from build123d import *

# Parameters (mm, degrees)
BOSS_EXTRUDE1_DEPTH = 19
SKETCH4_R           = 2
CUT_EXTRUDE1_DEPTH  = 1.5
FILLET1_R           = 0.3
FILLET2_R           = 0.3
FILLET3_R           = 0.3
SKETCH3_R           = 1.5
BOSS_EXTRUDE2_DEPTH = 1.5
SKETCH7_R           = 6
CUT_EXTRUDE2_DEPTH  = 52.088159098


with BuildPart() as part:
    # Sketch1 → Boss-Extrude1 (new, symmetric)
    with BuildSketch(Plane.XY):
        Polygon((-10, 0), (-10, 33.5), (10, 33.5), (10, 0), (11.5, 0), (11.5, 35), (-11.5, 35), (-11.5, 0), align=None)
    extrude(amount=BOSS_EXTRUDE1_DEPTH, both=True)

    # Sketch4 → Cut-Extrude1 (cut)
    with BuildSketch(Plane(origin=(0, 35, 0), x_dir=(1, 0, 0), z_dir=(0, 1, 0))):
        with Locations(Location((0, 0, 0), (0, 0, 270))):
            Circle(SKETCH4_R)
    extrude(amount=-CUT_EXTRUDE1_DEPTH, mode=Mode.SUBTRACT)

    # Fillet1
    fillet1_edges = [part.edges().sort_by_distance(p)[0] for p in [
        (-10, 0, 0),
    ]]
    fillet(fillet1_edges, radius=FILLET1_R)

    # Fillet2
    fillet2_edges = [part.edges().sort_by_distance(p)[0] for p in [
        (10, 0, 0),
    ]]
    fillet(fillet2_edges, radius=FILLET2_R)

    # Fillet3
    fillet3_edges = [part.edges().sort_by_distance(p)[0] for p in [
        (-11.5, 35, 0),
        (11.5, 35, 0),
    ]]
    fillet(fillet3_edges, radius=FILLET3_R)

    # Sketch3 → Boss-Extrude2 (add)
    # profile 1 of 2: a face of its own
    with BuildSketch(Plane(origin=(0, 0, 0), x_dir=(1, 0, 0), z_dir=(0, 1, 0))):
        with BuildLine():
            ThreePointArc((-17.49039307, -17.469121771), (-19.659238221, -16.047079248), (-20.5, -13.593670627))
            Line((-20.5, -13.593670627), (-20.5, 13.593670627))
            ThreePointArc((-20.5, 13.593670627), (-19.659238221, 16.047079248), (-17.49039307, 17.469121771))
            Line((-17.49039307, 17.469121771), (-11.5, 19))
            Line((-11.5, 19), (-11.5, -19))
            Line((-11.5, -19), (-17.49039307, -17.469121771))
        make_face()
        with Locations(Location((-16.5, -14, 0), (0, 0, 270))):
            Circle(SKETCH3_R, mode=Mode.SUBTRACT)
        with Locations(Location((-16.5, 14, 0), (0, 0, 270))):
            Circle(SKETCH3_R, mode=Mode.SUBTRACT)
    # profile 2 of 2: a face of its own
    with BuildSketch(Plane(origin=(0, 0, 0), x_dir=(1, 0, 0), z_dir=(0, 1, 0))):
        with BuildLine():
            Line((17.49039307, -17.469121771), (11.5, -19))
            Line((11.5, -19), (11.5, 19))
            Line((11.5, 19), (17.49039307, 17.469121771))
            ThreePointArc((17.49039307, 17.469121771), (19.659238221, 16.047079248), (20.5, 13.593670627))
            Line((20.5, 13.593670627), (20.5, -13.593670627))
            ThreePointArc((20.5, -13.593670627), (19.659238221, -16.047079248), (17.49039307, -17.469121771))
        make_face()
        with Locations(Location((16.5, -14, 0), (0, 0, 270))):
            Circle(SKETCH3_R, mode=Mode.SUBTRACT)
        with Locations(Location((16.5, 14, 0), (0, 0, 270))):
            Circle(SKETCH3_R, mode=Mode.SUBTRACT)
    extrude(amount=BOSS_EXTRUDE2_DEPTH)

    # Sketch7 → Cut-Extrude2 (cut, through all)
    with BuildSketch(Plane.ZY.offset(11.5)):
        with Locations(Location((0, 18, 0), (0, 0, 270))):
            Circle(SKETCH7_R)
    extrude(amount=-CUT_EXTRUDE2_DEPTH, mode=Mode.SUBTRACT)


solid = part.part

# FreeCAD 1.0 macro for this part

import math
import FreeCAD as App
import Part
import Sketcher
from FreeCAD import Vector


def edges_at(feature, points):
    """Names of the edges that pass closest to the given points."""
    edges = feature.Shape.Edges
    near = lambda p: min(range(len(edges)), key=lambda i: edges[i].distToShape(Part.Vertex(*p))[0])
    return sorted({f"Edge{near(p) + 1}" for p in points})

doc = App.newDocument("Part")
body = doc.addObject("PartDesign::Body", "Body")

# Sketch on XY plane
sketch1 = doc.addObject("Sketcher::SketchObject", "Sketch")
body.addObject(sketch1)
sketch1.AttachmentSupport = (doc.XY_Plane, [""])
sketch1.MapMode = "FlatFace"
sketch1.addGeometry([
    Part.LineSegment(Vector(-10, 0, 0), Vector(-10, 33.5, 0)),  # 0
    Part.LineSegment(Vector(-10, 33.5, 0), Vector(10, 33.5, 0)),  # 1
    Part.LineSegment(Vector(10, 33.5, 0), Vector(10, 0, 0)),  # 2
    Part.LineSegment(Vector(10, 0, 0), Vector(11.5, 0, 0)),  # 3
    Part.LineSegment(Vector(11.5, 0, 0), Vector(11.5, 35, 0)),  # 4
    Part.LineSegment(Vector(11.5, 35, 0), Vector(-11.5, 35, 0)),  # 5
    Part.LineSegment(Vector(-11.5, 35, 0), Vector(-11.5, 0, 0)),  # 6
    Part.LineSegment(Vector(-11.5, 0, 0), Vector(-10, 0, 0)),  # 7
], False)
sketch1.addConstraint([
    Sketcher.Constraint("Coincident", 0, 2, 1, 1),
    Sketcher.Constraint("Coincident", 1, 2, 2, 1),
    Sketcher.Constraint("Coincident", 2, 2, 3, 1),
    Sketcher.Constraint("Coincident", 3, 2, 4, 1),
    Sketcher.Constraint("Coincident", 4, 2, 5, 1),
    Sketcher.Constraint("Coincident", 5, 2, 6, 1),
    Sketcher.Constraint("Coincident", 6, 2, 7, 1),
    Sketcher.Constraint("Coincident", 7, 2, 0, 1),
    Sketcher.Constraint("Vertical", 0),
    Sketcher.Constraint("Horizontal", 1),
    Sketcher.Constraint("Vertical", 2),
    Sketcher.Constraint("Horizontal", 3),
    Sketcher.Constraint("Vertical", 4),
    Sketcher.Constraint("Horizontal", 5),
    Sketcher.Constraint("Vertical", 6),
    Sketcher.Constraint("Horizontal", 7),
    Sketcher.Constraint("Symmetric", 3, 2, 6, 2, -1, 1),
    Sketcher.Constraint("Symmetric", 2, 2, 7, 2, -2),
    Sketcher.Constraint("DistanceX", 1, 1, 1, 2, 20.0),
    Sketcher.Constraint("DistanceX", 5, 2, 5, 1, 23.0),
    Sketcher.Constraint("DistanceY", 4, 1, 4, 2, 35.0),
    Sketcher.Constraint("DistanceY", 0, 1, 0, 2, 33.5),
])
pad1 = doc.addObject("PartDesign::Pad", "Pad")
body.addObject(pad1)
pad1.Profile = sketch1
pad1.Length = 38
pad1.Midplane = True

# Sketch on XZ plane
sketch2 = doc.addObject("Sketcher::SketchObject", "Sketch001")
body.addObject(sketch2)
sketch2.AttachmentSupport = (doc.XZ_Plane, [""])
sketch2.MapMode = "FlatFace"
sketch2.AttachmentOffset = App.Placement(Vector(0, 0, -35), App.Rotation())
sketch2.addGeometry(Part.Circle(Vector(0, 0, 0), Vector(0, 0, 1), 2), False)
sketch2.addConstraint([
    Sketcher.Constraint("Coincident", 0, 3, -1, 1),
    Sketcher.Constraint("Diameter", 0, 4.0),
])
pocket1 = doc.addObject("PartDesign::Pocket", "Pocket")
body.addObject(pocket1)
pocket1.Profile = sketch2
pocket1.Length = 1.5
pocket1.Reversed = True
doc.recompute()

fillet = doc.addObject("PartDesign::Fillet", "Fillet")
body.addObject(fillet)
fillet.Base = (pocket1, edges_at(pocket1, [(-10, 0, 0)]))
fillet.Radius = 0.3
doc.recompute()

fillet2 = doc.addObject("PartDesign::Fillet", "Fillet001")
body.addObject(fillet2)
fillet2.Base = (fillet, edges_at(fillet, [(10, 0, 0)]))
fillet2.Radius = 0.3
doc.recompute()

fillet3 = doc.addObject("PartDesign::Fillet", "Fillet002")
body.addObject(fillet3)
fillet3.Base = (fillet2, edges_at(fillet2, [(-11.5, 35, 0), (11.5, 35, 0)]))
fillet3.Radius = 0.3

# Sketch on XZ plane
sketch3 = doc.addObject("Sketcher::SketchObject", "Sketch002")
body.addObject(sketch3)
sketch3.AttachmentSupport = (doc.XZ_Plane, [""])
sketch3.MapMode = "FlatFace"
sketch3.addGeometry([
    Part.ArcOfCircle(Part.Circle(Vector(-16.5, 13.593671, 0), Vector(0, 0, 1), 4), math.radians(104.335435), math.radians(180)),  # 0
    Part.LineSegment(Vector(-17.490393, 17.469122, 0), Vector(-11.5, 19, 0)),  # 1
    Part.LineSegment(Vector(-11.5, 19, 0), Vector(-11.5, -19, 0)),  # 2
    Part.LineSegment(Vector(-11.5, -19, 0), Vector(-17.490393, -17.469122, 0)),  # 3
    Part.ArcOfCircle(Part.Circle(Vector(-16.5, -13.593671, 0), Vector(0, 0, 1), 4), math.radians(-180), math.radians(-104.335435)),  # 4
    Part.LineSegment(Vector(-20.5, -13.593671, 0), Vector(-20.5, 13.593671, 0)),  # 5
    Part.Circle(Vector(-16.5, 14, 0), Vector(0, 0, 1), 1.5),  # 6
    Part.Circle(Vector(-16.5, -14, 0), Vector(0, 0, 1), 1.5),  # 7
    Part.LineSegment(Vector(11.5, 19, 0), Vector(17.490393, 17.469122, 0)),  # 8
    Part.ArcOfCircle(Part.Circle(Vector(16.5, 13.593671, 0), Vector(0, 0, 1), 4), math.radians(0), math.radians(75.664565)),  # 9
    Part.LineSegment(Vector(20.5, 13.593671, 0), Vector(20.5, -13.593671, 0)),  # 10
    Part.ArcOfCircle(Part.Circle(Vector(16.5, -13.593671, 0), Vector(0, 0, 1), 4), math.radians(-75.664565), math.radians(0)),  # 11
    Part.LineSegment(Vector(17.490393, -17.469122, 0), Vector(11.5, -19, 0)),  # 12
    Part.LineSegment(Vector(11.5, -19, 0), Vector(11.5, 19, 0)),  # 13
    Part.Circle(Vector(16.5, 14, 0), Vector(0, 0, 1), 1.5),  # 14
    Part.Circle(Vector(16.5, -14, 0), Vector(0, 0, 1), 1.5),  # 15
], False)
sketch3.addConstraint([
    Sketcher.Constraint("Tangent", 0, 1, 1, 1),
    Sketcher.Constraint("Coincident", 1, 2, 2, 1),
    Sketcher.Constraint("Coincident", 2, 2, 3, 1),
    Sketcher.Constraint("Tangent", 3, 2, 4, 2),
    Sketcher.Constraint("Tangent", 4, 1, 5, 1),
    Sketcher.Constraint("Tangent", 5, 2, 0, 2),
    Sketcher.Constraint("Tangent", 8, 2, 9, 2),
    Sketcher.Constraint("Tangent", 9, 1, 10, 1),
    Sketcher.Constraint("Tangent", 10, 2, 11, 2),
    Sketcher.Constraint("Tangent", 11, 1, 12, 1),
    Sketcher.Constraint("Coincident", 12, 2, 13, 1),
    Sketcher.Constraint("Coincident", 13, 2, 8, 1),
    Sketcher.Constraint("Vertical", 2),
    Sketcher.Constraint("Vertical", 5),
    Sketcher.Constraint("Vertical", 10),
    Sketcher.Constraint("Vertical", 13),
    Sketcher.Constraint("Equal", 0, 4),
    Sketcher.Constraint("Equal", 6, 7),
    Sketcher.Constraint("Equal", 4, 9),
    Sketcher.Constraint("Equal", 9, 11),
    Sketcher.Constraint("Equal", 7, 14),
    Sketcher.Constraint("Equal", 14, 15),
    Sketcher.Constraint("Symmetric", 4, 3, 9, 3, -1, 1),
    Sketcher.Constraint("Symmetric", 7, 3, 14, 3, -1, 1),
    Sketcher.Constraint("Symmetric", 6, 3, 15, 3, -1, 1),
    Sketcher.Constraint("Symmetric", 0, 1, 11, 1, -1, 1),
    Sketcher.Constraint("Symmetric", 2, 2, 13, 2, -1, 1),
    Sketcher.Constraint("Symmetric", 6, 3, 14, 3, -2),
    Sketcher.Constraint("Symmetric", 0, 1, 8, 2, -2),
    Sketcher.Constraint("Vertical", 4, 3, 6, 3),
    Sketcher.Constraint("Diameter", 6, 3.0),
    Sketcher.Constraint("Radius", 0, 4.0),
    Sketcher.Constraint("DistanceY", 2, 2, 2, 1, 38.0),
    Sketcher.Constraint("DistanceY", -1, 1, 6, 3, 14.0),
    Sketcher.Constraint("DistanceX", 0, 3, 9, 3, 33.0),
    Sketcher.Constraint("DistanceX", 6, 3, 1, 2, 5.0),
    Sketcher.Constraint("DistanceY", 5, 1, 5, 2, 27.187341),
])
pad2 = doc.addObject("PartDesign::Pad", "Pad001")
body.addObject(pad2)
pad2.Profile = sketch3
pad2.Length = 1.5
pad2.Reversed = True

# Sketch on YZ plane
sketch4 = doc.addObject("Sketcher::SketchObject", "Sketch003")
body.addObject(sketch4)
sketch4.AttachmentSupport = (doc.YZ_Plane, [""])
sketch4.MapMode = "FlatFace"
sketch4.AttachmentOffset = App.Placement(Vector(0, 0, -11.5), App.Rotation())
sketch4.addGeometry(Part.Circle(Vector(18, 0, 0), Vector(0, 0, 1), 6), False)
sketch4.addConstraint([
    Sketcher.Constraint("PointOnObject", 0, 3, -1),
    Sketcher.Constraint("Diameter", 0, 12.0),
    Sketcher.Constraint("DistanceX", -1, 1, 0, 3, 18.0),
])
pocket2 = doc.addObject("PartDesign::Pocket", "Pocket001")
body.addObject(pocket2)
pocket2.Profile = sketch4
pocket2.Type = "ThroughAll"
pocket2.Reversed = True

doc.recompute()
